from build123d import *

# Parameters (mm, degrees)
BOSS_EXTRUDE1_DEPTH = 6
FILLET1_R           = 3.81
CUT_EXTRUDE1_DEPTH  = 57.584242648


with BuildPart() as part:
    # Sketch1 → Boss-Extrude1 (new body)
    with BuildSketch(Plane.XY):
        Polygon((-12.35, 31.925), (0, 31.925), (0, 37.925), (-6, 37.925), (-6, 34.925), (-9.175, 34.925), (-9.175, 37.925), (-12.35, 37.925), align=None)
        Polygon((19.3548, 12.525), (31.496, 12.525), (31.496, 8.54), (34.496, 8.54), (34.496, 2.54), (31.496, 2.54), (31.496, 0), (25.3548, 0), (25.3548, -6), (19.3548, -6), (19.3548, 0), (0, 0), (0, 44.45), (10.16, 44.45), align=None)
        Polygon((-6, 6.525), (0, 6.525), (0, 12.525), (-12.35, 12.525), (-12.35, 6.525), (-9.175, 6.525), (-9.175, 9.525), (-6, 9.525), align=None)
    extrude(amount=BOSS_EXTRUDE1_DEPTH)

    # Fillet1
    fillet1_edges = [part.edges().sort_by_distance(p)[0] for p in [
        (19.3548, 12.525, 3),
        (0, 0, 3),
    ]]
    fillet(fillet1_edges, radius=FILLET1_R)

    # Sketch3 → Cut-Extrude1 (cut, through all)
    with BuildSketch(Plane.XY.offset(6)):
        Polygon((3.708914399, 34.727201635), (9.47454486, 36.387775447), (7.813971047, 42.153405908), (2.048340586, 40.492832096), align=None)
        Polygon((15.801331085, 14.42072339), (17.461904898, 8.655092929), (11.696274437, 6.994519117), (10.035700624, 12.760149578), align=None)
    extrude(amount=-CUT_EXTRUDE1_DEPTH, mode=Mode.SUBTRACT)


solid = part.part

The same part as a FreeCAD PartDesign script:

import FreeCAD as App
import Part
import Sketcher
Q = App.Units.Quantity


def edges_at(feature, points):
    """Names of the edges that pass closest to the given points."""
    edges = feature.Shape.Edges
    near = lambda p: min(range(len(edges)), key=lambda i: edges[i].distToShape(Part.Vertex(*p))[0])
    return sorted({f"Edge{near(p) + 1}" for p in points})

doc = App.newDocument("Part")
body = doc.addObject("PartDesign::Body", "Body")

# Sketch on XY plane
sketch1 = body.newObject("Sketcher::SketchObject", "Sketch")
sketch1.AttachmentSupport = (doc.getObject("XY_Plane"), [""])
sketch1.MapMode = "FlatFace"
sketch1.addGeometry([
    Part.LineSegment(App.Vector(-12.3, 31.9, 0), App.Vector(0, 31.9, 0)),  # 0
    Part.LineSegment(App.Vector(0, 31.9, 0), App.Vector(0, 12.5, 0)),  # 1
    Part.LineSegment(App.Vector(0, 12.5, 0), App.Vector(-12.3, 12.5, 0)),  # 2
    Part.LineSegment(App.Vector(-12.3, 12.5, 0), App.Vector(-12.3, 6.5, 0)),  # 3
    Part.LineSegment(App.Vector(-12.3, 6.5, 0), App.Vector(-9.2, 6.5, 0)),  # 4
    Part.LineSegment(App.Vector(-9.2, 6.5, 0), App.Vector(-9.2, 9.5, 0)),  # 5
    Part.LineSegment(App.Vector(-9.2, 9.5, 0), App.Vector(-6, 9.5, 0)),  # 6
    Part.LineSegment(App.Vector(-6, 9.5, 0), App.Vector(-6, 6.5, 0)),  # 7
    Part.LineSegment(App.Vector(-6, 6.5, 0), App.Vector(0, 6.5, 0)),  # 8
    Part.LineSegment(App.Vector(0, 6.5, 0), App.Vector(0, 0, 0)),  # 9
    Part.LineSegment(App.Vector(0, 0, 0), App.Vector(19.4, 0, 0)),  # 10
    Part.LineSegment(App.Vector(19.4, 0, 0), App.Vector(19.4, -6, 0)),  # 11
    Part.LineSegment(App.Vector(19.4, -6, 0), App.Vector(25.4, -6, 0)),  # 12
    Part.LineSegment(App.Vector(25.4, -6, 0), App.Vector(25.4, 0, 0)),  # 13
    Part.LineSegment(App.Vector(25.4, 0, 0), App.Vector(31.5, 0, 0)),  # 14
    Part.LineSegment(App.Vector(31.5, 0, 0), App.Vector(31.5, 2.5, 0)),  # 15
    Part.LineSegment(App.Vector(31.5, 2.5, 0), App.Vector(34.5, 2.5, 0)),  # 16
    Part.LineSegment(App.Vector(34.5, 2.5, 0), App.Vector(34.5, 8.5, 0)),  # 17
    Part.LineSegment(App.Vector(34.5, 8.5, 0), App.Vector(31.5, 8.5, 0)),  # 18
    Part.LineSegment(App.Vector(31.5, 8.5, 0), App.Vector(31.5, 12.5, 0)),  # 19
    Part.LineSegment(App.Vector(31.5, 12.5, 0), App.Vector(19.4, 12.5, 0)),  # 20
    Part.LineSegment(App.Vector(19.4, 12.5, 0), App.Vector(10.2, 44.5, 0)),  # 21
    Part.LineSegment(App.Vector(10.2, 44.5, 0), App.Vector(0, 44.5, 0)),  # 22
    Part.LineSegment(App.Vector(0, 44.5, 0), App.Vector(0, 37.9, 0)),  # 23
    Part.LineSegment(App.Vector(0, 37.9, 0), App.Vector(-6, 37.9, 0)),  # 24
    Part.LineSegment(App.Vector(-6, 37.9, 0), App.Vector(-6, 34.9, 0)),  # 25
    Part.LineSegment(App.Vector(-6, 34.9, 0), App.Vector(-9.2, 34.9, 0)),  # 26
    Part.LineSegment(App.Vector(-9.2, 34.9, 0), App.Vector(-9.2, 37.9, 0)),  # 27
    Part.LineSegment(App.Vector(-9.2, 37.9, 0), App.Vector(-12.3, 37.9, 0)),  # 28
    Part.LineSegment(App.Vector(-12.3, 37.9, 0), App.Vector(-12.3, 31.9, 0)),  # 29
], False)
sketch1.addConstraint([
    Sketcher.Constraint("Coincident", 0, 2, 1, 1),
    Sketcher.Constraint("Coincident", 1, 2, 2, 1),
    Sketcher.Constraint("Coincident", 2, 2, 3, 1),
    Sketcher.Constraint("Coincident", 3, 2, 4, 1),
    Sketcher.Constraint("Coincident", 4, 2, 5, 1),
    Sketcher.Constraint("Coincident", 5, 2, 6, 1),
    Sketcher.Constraint("Coincident", 6, 2, 7, 1),
    Sketcher.Constraint("Coincident", 7, 2, 8, 1),
    Sketcher.Constraint("Coincident", 8, 2, 9, 1),
    Sketcher.Constraint("Coincident", 9, 2, 10, 1),
    Sketcher.Constraint("Coincident", 10, 2, 11, 1),
    Sketcher.Constraint("Coincident", 11, 2, 12, 1),
    Sketcher.Constraint("Coincident", 12, 2, 13, 1),
    Sketcher.Constraint("Coincident", 13, 2, 14, 1),
    Sketcher.Constraint("Coincident", 14, 2, 15, 1),
    Sketcher.Constraint("Coincident", 15, 2, 16, 1),
    Sketcher.Constraint("Coincident", 16, 2, 17, 1),
    Sketcher.Constraint("Coincident", 17, 2, 18, 1),
    Sketcher.Constraint("Coincident", 18, 2, 19, 1),
    Sketcher.Constraint("Coincident", 19, 2, 20, 1),
    Sketcher.Constraint("Coincident", 20, 2, 21, 1),
    Sketcher.Constraint("Coincident", 21, 2, 22, 1),
    Sketcher.Constraint("Coincident", 22, 2, 23, 1),
    Sketcher.Constraint("Coincident", 23, 2, 24, 1),
    Sketcher.Constraint("Coincident", 24, 2, 25, 1),
    Sketcher.Constraint("Coincident", 25, 2, 26, 1),
    Sketcher.Constraint("Coincident", 26, 2, 27, 1),
    Sketcher.Constraint("Coincident", 27, 2, 28, 1),
    Sketcher.Constraint("Coincident", 28, 2, 29, 1),
    Sketcher.Constraint("Coincident", 29, 2, 0, 1),
    Sketcher.Constraint("Horizontal", 0),
    Sketcher.Constraint("Vertical", 1),
    Sketcher.Constraint("Horizontal", 2),
    Sketcher.Constraint("Vertical", 3),
    Sketcher.Constraint("Horizontal", 4),
    Sketcher.Constraint("Vertical", 5),
    Sketcher.Constraint("Horizontal", 6),
    Sketcher.Constraint("Vertical", 7),
    Sketcher.Constraint("Horizontal", 8),
    Sketcher.Constraint("Vertical", 9),
    Sketcher.Constraint("Horizontal", 10),
    Sketcher.Constraint("Vertical", 11),
    Sketcher.Constraint("Horizontal", 12),
    Sketcher.Constraint("Vertical", 13),
    Sketcher.Constraint("Horizontal", 14),
    Sketcher.Constraint("Vertical", 15),
    Sketcher.Constraint("Horizontal", 16),
    Sketcher.Constraint("Vertical", 17),
    Sketcher.Constraint("Horizontal", 18),
    Sketcher.Constraint("Vertical", 19),
    Sketcher.Constraint("Horizontal", 20),
    Sketcher.Constraint("Horizontal", 22),
    Sketcher.Constraint("Vertical", 23),
    Sketcher.Constraint("Horizontal", 24),
    Sketcher.Constraint("Vertical", 25),
    Sketcher.Constraint("Horizontal", 26),
    Sketcher.Constraint("Vertical", 27),
    Sketcher.Constraint("Horizontal", 28),
    Sketcher.Constraint("Vertical", 29),
    Sketcher.Constraint("Coincident", 9, 2, -1, 1),
    Sketcher.Constraint("PointOnObject", 0, 2, -2),
    Sketcher.Constraint("PointOnObject", 13, 2, -1),
    Sketcher.Constraint("PointOnObject", 22, 2, -2),
    Sketcher.Constraint("Horizontal", 4, 2, 7, 2),
    Sketcher.Constraint("Horizontal", 2, 2, 19, 2),
    Sketcher.Constraint("Horizontal", 24, 2, 27, 2),
    Sketcher.Constraint("Vertical", 15, 2, 18, 2),
    Sketcher.Constraint("Vertical", 11, 2, 20, 2),
    Sketcher.Constraint("Vertical", 7, 2, 24, 2),
    Sketcher.Constraint("Vertical", 5, 2, 26, 2),
    Sketcher.Constraint("Vertical", 3, 2, 28, 2),
    Sketcher.Constraint("Equal", 4, 6),
    Sketcher.Constraint("Equal", 8, 12),
    Sketcher.Constraint("Equal", 24, 3),
    Sketcher.Constraint("Equal", 18, 5),
    Sketcher.Constraint("Equal", 3, 11),
    Sketcher.Constraint("Equal", 13, 17),
    Sketcher.Constraint("Equal", 9, 23),
    Sketcher.Constraint("Equal", 7, 25),
    Sketcher.Constraint("Equal", 17, 29),
    Sketcher.Constraint("DistanceX", 22, 2, 22, 1, Q("0.4 in")),
    Sketcher.Constraint("DistanceY", 15, 1, 15, 2, Q("0.1 in")),
    Sketcher.Constraint("DistanceY", 3, 2, 0, 2, Q("1 in")),
    Sketcher.Constraint("DistanceX", 4, 1, 4, 2, Q("0.125 in")),
    Sketcher.Constraint("DistanceX", 10, 1, 10, 2, Q("0.762 in")),
    Sketcher.Constraint("DistanceX", 20, 2, 20, 1, Q("0.478 in")),
    Sketcher.Constraint("DistanceY", -1, 1, 21, 2, Q("1.75 in")),
    Sketcher.Constraint("DistanceY", -1, 1, 5, 2, Q("0.375 in")),
    Sketcher.Constraint("DistanceX", 0, 1, 0, 2, Q("12.35 mm")),
])
pad1 = body.newObject("PartDesign::Pad", "Pad")
pad1.Profile = sketch1
pad1.Length = 6
doc.recompute()

fillet = body.newObject("PartDesign::Fillet", "Fillet")
fillet.Base = (pad1, edges_at(pad1, [(19.355, 12.525, 3), (0, 0, 3)]))
fillet.Radius = Q("0.15 in")

# Sketch on XY plane
sketch2 = body.newObject("Sketcher::SketchObject", "Sketch001")
sketch2.AttachmentSupport = (doc.getObject("XY_Plane"), [""])
sketch2.MapMode = "FlatFace"
sketch2.AttachmentOffset = App.Placement(App.Vector(0, 0, 6), App.Rotation())
sketch2.addGeometry([
    Part.LineSegment(App.Vector(4, 35, 0), App.Vector(9, 36, 0)),  # 0
    Part.LineSegment(App.Vector(9, 36, 0), App.Vector(8, 42, 0)),  # 1
    Part.LineSegment(App.Vector(8, 42, 0), App.Vector(2, 40, 0)),  # 2
    Part.LineSegment(App.Vector(2, 40, 0), App.Vector(4, 35, 0)),  # 3
    Part.LineSegment(App.Vector(17, 9, 0), App.Vector(16, 14, 0)),  # 4
    Part.LineSegment(App.Vector(16, 14, 0), App.Vector(10, 13, 0)),  # 5
    Part.LineSegment(App.Vector(10, 13, 0), App.Vector(12, 7, 0)),  # 6
    Part.LineSegment(App.Vector(12, 7, 0), App.Vector(17, 9, 0)),  # 7
], False)
sketch2.addConstraint([
    Sketcher.Constraint("Coincident", 0, 2, 1, 1),
    Sketcher.Constraint("Coincident", 1, 2, 2, 1),
    Sketcher.Constraint("Coincident", 2, 2, 3, 1),
    Sketcher.Constraint("Coincident", 3, 2, 0, 1),
    Sketcher.Constraint("Coincident", 4, 2, 5, 1),
    Sketcher.Constraint("Coincident", 5, 2, 6, 1),
    Sketcher.Constraint("Coincident", 6, 2, 7, 1),
    Sketcher.Constraint("Coincident", 7, 2, 4, 1),
    Sketcher.Constraint("Perpendicular", 0, 1),
    Sketcher.Constraint("Perpendicular", 1, 2),
    Sketcher.Constraint("Perpendicular", 2, 3),
    Sketcher.Constraint("Parallel", 3, 4),
    Sketcher.Constraint("Perpendicular", 4, 5),
    Sketcher.Constraint("Perpendicular", 5, 6),
    Sketcher.Constraint("Perpendicular", 6, 7),
    Sketcher.Constraint("Equal", 0, 1),
    Sketcher.Constraint("Equal", 3, 4),
    Sketcher.Constraint("Equal", 4, 5),
    Sketcher.Constraint("Distance", 0, Q("6 mm")),
    Sketcher.Constraint("DistanceY", -1, 1, 3, 2, Q("34.727202 mm")),
    Sketcher.Constraint("DistanceX", -1, 1, 5, 2, Q("10.035701 mm")),
    Sketcher.Constraint("DistanceX", -1, 1, 1, 2, Q("7.813971 mm")),
    Sketcher.Constraint("DistanceX", -1, 1, 2, 2, Q("2.048341 mm")),
    Sketcher.Constraint("DistanceY", -1, 1, 5, 2, Q("12.76015 mm")),
])
pocket1 = body.newObject("PartDesign::Pocket", "Pocket")
pocket1.Profile = sketch2
pocket1.Type = "ThroughAll"

doc.recompute()
